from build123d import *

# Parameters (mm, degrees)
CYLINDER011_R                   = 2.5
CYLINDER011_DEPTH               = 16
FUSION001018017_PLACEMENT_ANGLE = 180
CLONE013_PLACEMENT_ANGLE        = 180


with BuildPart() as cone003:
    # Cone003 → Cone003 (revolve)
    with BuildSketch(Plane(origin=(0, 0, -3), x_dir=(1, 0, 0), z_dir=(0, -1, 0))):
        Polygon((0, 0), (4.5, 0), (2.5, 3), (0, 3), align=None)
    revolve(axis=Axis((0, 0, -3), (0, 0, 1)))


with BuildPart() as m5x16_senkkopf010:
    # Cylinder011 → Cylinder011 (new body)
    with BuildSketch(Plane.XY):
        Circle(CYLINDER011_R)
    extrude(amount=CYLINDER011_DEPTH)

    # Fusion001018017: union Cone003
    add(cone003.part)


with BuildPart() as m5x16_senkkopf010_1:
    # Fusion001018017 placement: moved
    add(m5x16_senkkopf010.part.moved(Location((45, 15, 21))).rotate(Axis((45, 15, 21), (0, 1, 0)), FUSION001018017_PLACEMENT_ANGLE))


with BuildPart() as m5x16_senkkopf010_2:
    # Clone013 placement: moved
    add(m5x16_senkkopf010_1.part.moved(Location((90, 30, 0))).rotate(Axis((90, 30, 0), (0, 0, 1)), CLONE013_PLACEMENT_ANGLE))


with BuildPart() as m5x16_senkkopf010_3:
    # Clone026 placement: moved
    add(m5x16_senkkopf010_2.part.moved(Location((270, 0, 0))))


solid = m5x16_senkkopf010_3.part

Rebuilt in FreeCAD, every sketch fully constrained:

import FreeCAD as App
import Part
import Sketcher

V = App.Vector


def add_polygon(sketch, points):
    """Adds a closed chain of lines whose ends are joined by coincident constraints."""
    first, n = sketch.GeometryCount, len(points)
    for a, b in zip(points, points[1:] + points[:1]):
        sketch.addGeometry(Part.LineSegment(App.Vector(*a, 0), App.Vector(*b, 0)), False)
    for i in range(n):
        sketch.addConstraint(Sketcher.Constraint("Coincident", first + i, 2, first + (i + 1) % n, 1))

doc = App.newDocument("Part")
body = doc.addObject("PartDesign::Body", "Body")

sketch1 = doc.addObject("Sketcher::SketchObject", "Sketch")
body.addObject(sketch1)
sketch1.AttachmentSupport = (doc.XZ_Plane, [""])
sketch1.MapMode = "FlatFace"
add_polygon(sketch1, [(0, -3), (4.5, -3), (2.5, 0), (0, 0)])
sketch1.addConstraint([
    Sketcher.Constraint("Horizontal", 0),
    Sketcher.Constraint("Horizontal", 2),
    Sketcher.Constraint("Vertical", 3),
    Sketcher.Constraint("Coincident", 2, 2, -1, 1),
    Sketcher.Constraint("DistanceY", 3, 2, 3, 1, 3.0),
    Sketcher.Constraint("DistanceX", 0, 1, 0, 2, 4.5),
    Sketcher.Constraint("DistanceX", 2, 2, 2, 1, 2.5),
])
revolution = doc.addObject("PartDesign::Revolution", "Revolution")
body.addObject(revolution)
revolution.Profile = sketch1
revolution.ReferenceAxis = (sketch1, ["V_Axis"])
revolution.Angle = 360
body2 = doc.addObject("PartDesign::Body", "Body001")

sketch2 = doc.addObject("Sketcher::SketchObject", "Sketch001")
body2.addObject(sketch2)
sketch2.AttachmentSupport = (doc.getObject("XY_Plane001"), [""])
sketch2.MapMode = "FlatFace"
sketch2.addGeometry(Part.Circle(V(0, 0, 0), V(0, 0, 1), 2.5), False)
sketch2.addConstraint([
    Sketcher.Constraint("Coincident", 0, 3, -1, 1),
    Sketcher.Constraint("Diameter", 0, 5.0),
])
pad1 = doc.addObject("PartDesign::Pad", "Pad")
body2.addObject(pad1)
pad1.Profile = sketch2
pad1.Length = 16
doc.recompute()

boolean = doc.addObject("PartDesign::Boolean", "Boolean")
body2.addObject(boolean)
boolean.Type = "Fuse"
boolean.addObjects([body])
body3 = doc.addObject("PartDesign::Body", "Body002")
doc.recompute()

body2.Placement = App.Placement(V(45, 15, 21), App.Rotation(V(0, 1, 0), 180))
boolean2 = doc.addObject("PartDesign::Boolean", "Boolean001")
body3.addObject(boolean2)
boolean2.Type = "Fuse"
boolean2.addObjects([body2])
body4 = doc.addObject("PartDesign::Body", "Body003")
doc.recompute()

body3.Placement = App.Placement(V(90, 30, 0), App.Rotation(V(0, 0, 1), 180))
boolean3 = doc.addObject("PartDesign::Boolean", "Boolean002")
body4.addObject(boolean3)
boolean3.Type = "Fuse"
boolean3.addObjects([body3])
body5 = doc.addObject("PartDesign::Body", "Body004")
doc.recompute()

body4.Placement = App.Placement(V(270, 0, 0), App.Rotation(V(0, 0, 1), 0))
boolean4 = doc.addObject("PartDesign::Boolean", "Boolean003")
body5.addObject(boolean4)
boolean4.Type = "Fuse"
boolean4.addObjects([body4])

doc.recompute()
